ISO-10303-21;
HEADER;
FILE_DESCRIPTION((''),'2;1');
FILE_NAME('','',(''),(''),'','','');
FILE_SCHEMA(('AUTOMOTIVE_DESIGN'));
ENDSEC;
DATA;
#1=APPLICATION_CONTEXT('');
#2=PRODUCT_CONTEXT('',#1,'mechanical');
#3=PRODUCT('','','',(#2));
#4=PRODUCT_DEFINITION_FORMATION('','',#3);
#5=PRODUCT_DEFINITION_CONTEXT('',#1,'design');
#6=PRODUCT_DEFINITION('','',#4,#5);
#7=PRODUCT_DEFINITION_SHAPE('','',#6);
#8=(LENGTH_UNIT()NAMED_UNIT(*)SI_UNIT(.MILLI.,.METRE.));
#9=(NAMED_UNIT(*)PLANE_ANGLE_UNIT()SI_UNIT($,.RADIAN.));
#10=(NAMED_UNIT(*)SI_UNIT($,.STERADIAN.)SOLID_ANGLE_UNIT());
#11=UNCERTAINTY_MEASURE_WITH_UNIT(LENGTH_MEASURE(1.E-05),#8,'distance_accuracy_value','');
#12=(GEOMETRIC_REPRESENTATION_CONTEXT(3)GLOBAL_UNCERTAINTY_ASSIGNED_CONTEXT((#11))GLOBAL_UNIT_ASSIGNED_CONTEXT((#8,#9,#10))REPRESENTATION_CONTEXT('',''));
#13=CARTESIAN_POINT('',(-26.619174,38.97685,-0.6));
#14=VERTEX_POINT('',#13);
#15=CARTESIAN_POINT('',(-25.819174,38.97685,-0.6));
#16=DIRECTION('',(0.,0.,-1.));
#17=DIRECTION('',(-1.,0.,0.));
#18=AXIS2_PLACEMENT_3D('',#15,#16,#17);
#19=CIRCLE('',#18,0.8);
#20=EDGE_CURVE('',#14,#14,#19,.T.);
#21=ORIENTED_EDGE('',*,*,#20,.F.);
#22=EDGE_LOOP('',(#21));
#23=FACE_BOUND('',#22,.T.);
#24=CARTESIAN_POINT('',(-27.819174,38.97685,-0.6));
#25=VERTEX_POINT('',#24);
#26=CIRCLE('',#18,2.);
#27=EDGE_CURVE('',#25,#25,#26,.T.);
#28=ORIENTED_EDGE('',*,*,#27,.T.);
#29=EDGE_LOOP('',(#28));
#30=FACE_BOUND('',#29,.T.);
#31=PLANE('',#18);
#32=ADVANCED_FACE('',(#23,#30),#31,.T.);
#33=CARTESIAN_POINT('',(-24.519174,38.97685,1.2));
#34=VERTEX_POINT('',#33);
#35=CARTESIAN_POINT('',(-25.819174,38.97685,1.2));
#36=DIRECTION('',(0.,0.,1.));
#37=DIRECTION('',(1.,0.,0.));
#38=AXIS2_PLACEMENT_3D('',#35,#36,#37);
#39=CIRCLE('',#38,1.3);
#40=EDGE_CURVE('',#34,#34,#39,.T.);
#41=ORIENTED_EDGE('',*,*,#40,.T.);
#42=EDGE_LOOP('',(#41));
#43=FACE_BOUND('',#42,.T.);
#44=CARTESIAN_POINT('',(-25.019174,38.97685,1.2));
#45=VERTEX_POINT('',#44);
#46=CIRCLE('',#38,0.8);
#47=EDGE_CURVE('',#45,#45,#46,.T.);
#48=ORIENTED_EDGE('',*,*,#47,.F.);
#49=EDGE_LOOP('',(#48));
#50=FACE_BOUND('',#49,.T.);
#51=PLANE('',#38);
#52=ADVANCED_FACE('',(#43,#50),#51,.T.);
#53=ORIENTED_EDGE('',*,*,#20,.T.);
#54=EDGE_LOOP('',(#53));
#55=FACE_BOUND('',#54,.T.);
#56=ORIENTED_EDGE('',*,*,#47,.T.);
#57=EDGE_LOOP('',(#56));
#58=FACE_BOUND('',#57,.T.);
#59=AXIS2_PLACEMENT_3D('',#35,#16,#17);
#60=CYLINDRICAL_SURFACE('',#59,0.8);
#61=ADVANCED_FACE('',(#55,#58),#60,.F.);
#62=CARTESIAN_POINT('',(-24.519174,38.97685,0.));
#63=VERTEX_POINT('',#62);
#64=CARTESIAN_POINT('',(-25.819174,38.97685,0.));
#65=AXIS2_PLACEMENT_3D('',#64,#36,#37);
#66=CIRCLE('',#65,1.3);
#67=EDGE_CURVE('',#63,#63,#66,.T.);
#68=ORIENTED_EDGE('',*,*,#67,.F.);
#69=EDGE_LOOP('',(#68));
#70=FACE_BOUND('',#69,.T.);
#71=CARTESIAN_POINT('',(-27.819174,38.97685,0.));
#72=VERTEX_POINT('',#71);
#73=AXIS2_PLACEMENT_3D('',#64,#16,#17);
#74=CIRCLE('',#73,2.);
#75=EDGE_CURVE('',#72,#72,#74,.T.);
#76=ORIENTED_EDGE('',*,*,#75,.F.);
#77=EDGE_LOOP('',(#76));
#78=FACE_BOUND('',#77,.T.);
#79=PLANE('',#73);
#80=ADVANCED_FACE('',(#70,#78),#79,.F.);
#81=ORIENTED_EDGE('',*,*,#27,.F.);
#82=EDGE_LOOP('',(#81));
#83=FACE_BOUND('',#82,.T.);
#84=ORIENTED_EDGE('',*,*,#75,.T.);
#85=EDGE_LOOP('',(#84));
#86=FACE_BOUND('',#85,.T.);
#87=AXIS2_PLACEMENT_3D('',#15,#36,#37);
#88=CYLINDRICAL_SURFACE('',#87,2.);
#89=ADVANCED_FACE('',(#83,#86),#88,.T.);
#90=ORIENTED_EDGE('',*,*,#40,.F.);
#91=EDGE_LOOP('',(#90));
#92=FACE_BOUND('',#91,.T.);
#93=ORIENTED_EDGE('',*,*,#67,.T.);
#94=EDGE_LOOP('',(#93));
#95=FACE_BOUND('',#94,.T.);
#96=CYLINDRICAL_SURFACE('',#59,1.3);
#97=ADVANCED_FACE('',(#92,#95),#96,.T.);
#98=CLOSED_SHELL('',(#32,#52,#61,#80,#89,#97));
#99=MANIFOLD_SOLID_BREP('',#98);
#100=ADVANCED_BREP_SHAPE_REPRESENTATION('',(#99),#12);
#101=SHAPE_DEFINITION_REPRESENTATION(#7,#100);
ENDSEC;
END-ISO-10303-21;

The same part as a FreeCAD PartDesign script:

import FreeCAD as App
import Part
import Sketcher
from FreeCAD import Vector
Q = App.Units.Quantity

doc = App.newDocument("Part")
body = doc.addObject("PartDesign::Body", "Body")

sketch1 = doc.addObject("Sketcher::SketchObject", "Sketch")
body.addObject(sketch1)
sketch1.AttachmentSupport = (doc.XY_Plane, [""])
sketch1.MapMode = "FlatFace"
sketch1.addGeometry(Part.Circle(Vector(-25.8, 39, 0), Vector(0, 0, 1), 1.3), False)
sketch1.addGeometry(Part.Circle(Vector(-25.8, 39, 0), Vector(0, 0, 1), 0.8), False)
sketch1.addConstraint(Sketcher.Constraint("Coincident", 1, 3, 0, 3))
sketch1.addConstraint(Sketcher.Constraint("Diameter", 0, Q("2.6 mm")))
sketch1.addConstraint(Sketcher.Constraint("Diameter", 1, Q("1.6 mm")))
sketch1.addConstraint(Sketcher.Constraint("DistanceY", -1, 1, 0, 3, Q("38.97685 mm")))
sketch1.addConstraint(Sketcher.Constraint("DistanceX", 0, 3, -1, 1, Q("25.819174 mm")))
pad1 = doc.addObject("PartDesign::Pad", "Pad")
body.addObject(pad1)
pad1.Profile = sketch1
pad1.Length = 1.2

sketch2 = doc.addObject("Sketcher::SketchObject", "Sketch001")
body.addObject(sketch2)
sketch2.AttachmentSupport = (doc.XY_Plane, [""])
sketch2.MapMode = "FlatFace"
sketch2.AttachmentOffset = App.Placement(Vector(0, 0, -0.6), App.Rotation())
sketch2.addGeometry(Part.Circle(Vector(-25.8, 39, 0), Vector(0, 0, 1), 2), False)
sketch2.addGeometry(Part.Circle(Vector(-25.8, 39, 0), Vector(0, 0, 1), 0.8), False)
sketch2.addConstraint(Sketcher.Constraint("Coincident", 1, 3, 0, 3))
sketch2.addConstraint(Sketcher.Constraint("Diameter", 0, Q("4 mm")))
sketch2.addConstraint(Sketcher.Constraint("Diameter", 1, Q("1.6 mm")))
sketch2.addConstraint(Sketcher.Constraint("DistanceY", -1, 1, 0, 3, Q("38.97685 mm")))
sketch2.addConstraint(Sketcher.Constraint("DistanceX", 0, 3, -1, 1, Q("25.819174 mm")))
pad2 = doc.addObject("PartDesign::Pad", "Pad001")
body.addObject(pad2)
pad2.Profile = sketch2
pad2.Length = 0.6

doc.recompute()
